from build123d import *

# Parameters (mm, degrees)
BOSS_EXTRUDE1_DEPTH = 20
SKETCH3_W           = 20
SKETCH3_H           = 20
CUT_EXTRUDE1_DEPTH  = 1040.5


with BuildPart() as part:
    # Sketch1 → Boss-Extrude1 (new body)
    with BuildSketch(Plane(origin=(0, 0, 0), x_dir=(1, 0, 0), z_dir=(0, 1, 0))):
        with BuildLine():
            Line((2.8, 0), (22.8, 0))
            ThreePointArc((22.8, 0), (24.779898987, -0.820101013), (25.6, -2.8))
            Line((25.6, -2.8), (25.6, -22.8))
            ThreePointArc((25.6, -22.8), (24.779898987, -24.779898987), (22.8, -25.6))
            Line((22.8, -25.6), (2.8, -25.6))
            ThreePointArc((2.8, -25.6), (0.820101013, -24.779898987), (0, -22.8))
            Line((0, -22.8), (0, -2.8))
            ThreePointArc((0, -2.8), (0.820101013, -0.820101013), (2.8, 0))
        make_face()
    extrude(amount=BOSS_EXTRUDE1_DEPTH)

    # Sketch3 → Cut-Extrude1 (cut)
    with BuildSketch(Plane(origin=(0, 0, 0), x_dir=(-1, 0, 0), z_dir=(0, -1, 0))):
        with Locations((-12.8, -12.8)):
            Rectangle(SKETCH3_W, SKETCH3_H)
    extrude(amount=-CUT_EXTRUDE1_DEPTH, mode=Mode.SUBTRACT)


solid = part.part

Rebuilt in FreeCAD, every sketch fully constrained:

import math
import FreeCAD as App
import Part
import Sketcher
from FreeCAD import Vector
Q = App.Units.Quantity


def add_polygon(sketch, points):
    """Adds a closed chain of lines whose ends are joined by coincident constraints."""
    first, n = sketch.GeometryCount, len(points)
    for a, b in zip(points, points[1:] + points[:1]):
        sketch.addGeometry(Part.LineSegment(App.Vector(*a, 0), App.Vector(*b, 0)), False)
    for i in range(n):
        sketch.addConstraint(Sketcher.Constraint("Coincident", first + i, 2, first + (i + 1) % n, 1))

doc = App.newDocument("Part")
body = doc.addObject("PartDesign::Body", "Body")

# Sketch on XZ plane
sketch1 = doc.addObject("Sketcher::SketchObject", "Sketch")
body.addObject(sketch1)
sketch1.AttachmentSupport = (doc.XZ_Plane, [""])
sketch1.MapMode = "FlatFace"
sketch1.addGeometry([
    Part.LineSegment(Vector(22.8, 0, 0), Vector(2.8, 0, 0)),  # 0
    Part.ArcOfCircle(Part.Circle(Vector(2.8, 2.8, 0), Vector(0, 0, 1), 2.8), math.radians(-180), math.radians(-90)),  # 1
    Part.LineSegment(Vector(0, 2.8, 0), Vector(0, 22.8, 0)),  # 2
    Part.ArcOfCircle(Part.Circle(Vector(2.8, 22.8, 0), Vector(0, 0, 1), 2.8), math.radians(90), math.radians(180)),  # 3
    Part.LineSegment(Vector(2.8, 25.6, 0), Vector(22.8, 25.6, 0)),  # 4
    Part.ArcOfCircle(Part.Circle(Vector(22.8, 22.8, 0), Vector(0, 0, 1), 2.8), math.radians(0), math.radians(90)),  # 5
    Part.LineSegment(Vector(25.6, 22.8, 0), Vector(25.6, 2.8, 0)),  # 6
    Part.ArcOfCircle(Part.Circle(Vector(22.8, 2.8, 0), Vector(0, 0, 1), 2.8), math.radians(-90), math.radians(0)),  # 7
], False)
sketch1.addConstraint([
    Sketcher.Constraint("Tangent", 0, 2, 1, 2),
    Sketcher.Constraint("Tangent", 1, 1, 2, 1),
    Sketcher.Constraint("Tangent", 2, 2, 3, 2),
    Sketcher.Constraint("Tangent", 3, 1, 4, 1),
    Sketcher.Constraint("Tangent", 4, 2, 5, 2),
    Sketcher.Constraint("Tangent", 5, 1, 6, 1),
    Sketcher.Constraint("Tangent", 6, 2, 7, 2),
    Sketcher.Constraint("Tangent", 7, 1, 0, 1),
    Sketcher.Constraint("Horizontal", 0),
    Sketcher.Constraint("Vertical", 2),
    Sketcher.Constraint("Horizontal", 4),
    Sketcher.Constraint("Vertical", 6),
    Sketcher.Constraint("Equal", 1, 3),
    Sketcher.Constraint("Equal", 3, 5),
    Sketcher.Constraint("Equal", 5, 7),
    Sketcher.Constraint("PointOnObject", 0, 2, -1),
    Sketcher.Constraint("PointOnObject", 1, 1, -2),
    Sketcher.Constraint("Equal", 4, 2),
    Sketcher.Constraint("Radius", 1, Q("2.8 mm")),
    Sketcher.Constraint("DistanceX", 0, 2, 0, 1, Q("20 mm")),
])
pad1 = doc.addObject("PartDesign::Pad", "Pad")
body.addObject(pad1)
pad1.Profile = sketch1
pad1.Length = 20
pad1.Reversed = True

# Sketch on XZ plane
sketch2 = doc.addObject("Sketcher::SketchObject", "Sketch001")
body.addObject(sketch2)
sketch2.AttachmentSupport = (doc.XZ_Plane, [""])
sketch2.MapMode = "FlatFace"
add_polygon(sketch2, [(23, 3), (23, 23), (3, 23), (3, 3)])  # lines 0-3
sketch2.addConstraint([
    Sketcher.Constraint("Vertical", 0),
    Sketcher.Constraint("Horizontal", 1),
    Sketcher.Constraint("Vertical", 2),
    Sketcher.Constraint("Horizontal", 3),
    Sketcher.Constraint("Equal", 3, 0),
    Sketcher.Constraint("DistanceX", 1, 2, 1, 1, Q("20 mm")),
    Sketcher.Constraint("DistanceX", -1, 1, 0, 2, Q("22.8 mm")),
    Sketcher.Constraint("DistanceY", -1, 1, 0, 2, Q("22.8 mm")),
])
pocket1 = doc.addObject("PartDesign::Pocket", "Pocket")
body.addObject(pocket1)
pocket1.Profile = sketch2
pocket1.Length = 1040.5

doc.recompute()
